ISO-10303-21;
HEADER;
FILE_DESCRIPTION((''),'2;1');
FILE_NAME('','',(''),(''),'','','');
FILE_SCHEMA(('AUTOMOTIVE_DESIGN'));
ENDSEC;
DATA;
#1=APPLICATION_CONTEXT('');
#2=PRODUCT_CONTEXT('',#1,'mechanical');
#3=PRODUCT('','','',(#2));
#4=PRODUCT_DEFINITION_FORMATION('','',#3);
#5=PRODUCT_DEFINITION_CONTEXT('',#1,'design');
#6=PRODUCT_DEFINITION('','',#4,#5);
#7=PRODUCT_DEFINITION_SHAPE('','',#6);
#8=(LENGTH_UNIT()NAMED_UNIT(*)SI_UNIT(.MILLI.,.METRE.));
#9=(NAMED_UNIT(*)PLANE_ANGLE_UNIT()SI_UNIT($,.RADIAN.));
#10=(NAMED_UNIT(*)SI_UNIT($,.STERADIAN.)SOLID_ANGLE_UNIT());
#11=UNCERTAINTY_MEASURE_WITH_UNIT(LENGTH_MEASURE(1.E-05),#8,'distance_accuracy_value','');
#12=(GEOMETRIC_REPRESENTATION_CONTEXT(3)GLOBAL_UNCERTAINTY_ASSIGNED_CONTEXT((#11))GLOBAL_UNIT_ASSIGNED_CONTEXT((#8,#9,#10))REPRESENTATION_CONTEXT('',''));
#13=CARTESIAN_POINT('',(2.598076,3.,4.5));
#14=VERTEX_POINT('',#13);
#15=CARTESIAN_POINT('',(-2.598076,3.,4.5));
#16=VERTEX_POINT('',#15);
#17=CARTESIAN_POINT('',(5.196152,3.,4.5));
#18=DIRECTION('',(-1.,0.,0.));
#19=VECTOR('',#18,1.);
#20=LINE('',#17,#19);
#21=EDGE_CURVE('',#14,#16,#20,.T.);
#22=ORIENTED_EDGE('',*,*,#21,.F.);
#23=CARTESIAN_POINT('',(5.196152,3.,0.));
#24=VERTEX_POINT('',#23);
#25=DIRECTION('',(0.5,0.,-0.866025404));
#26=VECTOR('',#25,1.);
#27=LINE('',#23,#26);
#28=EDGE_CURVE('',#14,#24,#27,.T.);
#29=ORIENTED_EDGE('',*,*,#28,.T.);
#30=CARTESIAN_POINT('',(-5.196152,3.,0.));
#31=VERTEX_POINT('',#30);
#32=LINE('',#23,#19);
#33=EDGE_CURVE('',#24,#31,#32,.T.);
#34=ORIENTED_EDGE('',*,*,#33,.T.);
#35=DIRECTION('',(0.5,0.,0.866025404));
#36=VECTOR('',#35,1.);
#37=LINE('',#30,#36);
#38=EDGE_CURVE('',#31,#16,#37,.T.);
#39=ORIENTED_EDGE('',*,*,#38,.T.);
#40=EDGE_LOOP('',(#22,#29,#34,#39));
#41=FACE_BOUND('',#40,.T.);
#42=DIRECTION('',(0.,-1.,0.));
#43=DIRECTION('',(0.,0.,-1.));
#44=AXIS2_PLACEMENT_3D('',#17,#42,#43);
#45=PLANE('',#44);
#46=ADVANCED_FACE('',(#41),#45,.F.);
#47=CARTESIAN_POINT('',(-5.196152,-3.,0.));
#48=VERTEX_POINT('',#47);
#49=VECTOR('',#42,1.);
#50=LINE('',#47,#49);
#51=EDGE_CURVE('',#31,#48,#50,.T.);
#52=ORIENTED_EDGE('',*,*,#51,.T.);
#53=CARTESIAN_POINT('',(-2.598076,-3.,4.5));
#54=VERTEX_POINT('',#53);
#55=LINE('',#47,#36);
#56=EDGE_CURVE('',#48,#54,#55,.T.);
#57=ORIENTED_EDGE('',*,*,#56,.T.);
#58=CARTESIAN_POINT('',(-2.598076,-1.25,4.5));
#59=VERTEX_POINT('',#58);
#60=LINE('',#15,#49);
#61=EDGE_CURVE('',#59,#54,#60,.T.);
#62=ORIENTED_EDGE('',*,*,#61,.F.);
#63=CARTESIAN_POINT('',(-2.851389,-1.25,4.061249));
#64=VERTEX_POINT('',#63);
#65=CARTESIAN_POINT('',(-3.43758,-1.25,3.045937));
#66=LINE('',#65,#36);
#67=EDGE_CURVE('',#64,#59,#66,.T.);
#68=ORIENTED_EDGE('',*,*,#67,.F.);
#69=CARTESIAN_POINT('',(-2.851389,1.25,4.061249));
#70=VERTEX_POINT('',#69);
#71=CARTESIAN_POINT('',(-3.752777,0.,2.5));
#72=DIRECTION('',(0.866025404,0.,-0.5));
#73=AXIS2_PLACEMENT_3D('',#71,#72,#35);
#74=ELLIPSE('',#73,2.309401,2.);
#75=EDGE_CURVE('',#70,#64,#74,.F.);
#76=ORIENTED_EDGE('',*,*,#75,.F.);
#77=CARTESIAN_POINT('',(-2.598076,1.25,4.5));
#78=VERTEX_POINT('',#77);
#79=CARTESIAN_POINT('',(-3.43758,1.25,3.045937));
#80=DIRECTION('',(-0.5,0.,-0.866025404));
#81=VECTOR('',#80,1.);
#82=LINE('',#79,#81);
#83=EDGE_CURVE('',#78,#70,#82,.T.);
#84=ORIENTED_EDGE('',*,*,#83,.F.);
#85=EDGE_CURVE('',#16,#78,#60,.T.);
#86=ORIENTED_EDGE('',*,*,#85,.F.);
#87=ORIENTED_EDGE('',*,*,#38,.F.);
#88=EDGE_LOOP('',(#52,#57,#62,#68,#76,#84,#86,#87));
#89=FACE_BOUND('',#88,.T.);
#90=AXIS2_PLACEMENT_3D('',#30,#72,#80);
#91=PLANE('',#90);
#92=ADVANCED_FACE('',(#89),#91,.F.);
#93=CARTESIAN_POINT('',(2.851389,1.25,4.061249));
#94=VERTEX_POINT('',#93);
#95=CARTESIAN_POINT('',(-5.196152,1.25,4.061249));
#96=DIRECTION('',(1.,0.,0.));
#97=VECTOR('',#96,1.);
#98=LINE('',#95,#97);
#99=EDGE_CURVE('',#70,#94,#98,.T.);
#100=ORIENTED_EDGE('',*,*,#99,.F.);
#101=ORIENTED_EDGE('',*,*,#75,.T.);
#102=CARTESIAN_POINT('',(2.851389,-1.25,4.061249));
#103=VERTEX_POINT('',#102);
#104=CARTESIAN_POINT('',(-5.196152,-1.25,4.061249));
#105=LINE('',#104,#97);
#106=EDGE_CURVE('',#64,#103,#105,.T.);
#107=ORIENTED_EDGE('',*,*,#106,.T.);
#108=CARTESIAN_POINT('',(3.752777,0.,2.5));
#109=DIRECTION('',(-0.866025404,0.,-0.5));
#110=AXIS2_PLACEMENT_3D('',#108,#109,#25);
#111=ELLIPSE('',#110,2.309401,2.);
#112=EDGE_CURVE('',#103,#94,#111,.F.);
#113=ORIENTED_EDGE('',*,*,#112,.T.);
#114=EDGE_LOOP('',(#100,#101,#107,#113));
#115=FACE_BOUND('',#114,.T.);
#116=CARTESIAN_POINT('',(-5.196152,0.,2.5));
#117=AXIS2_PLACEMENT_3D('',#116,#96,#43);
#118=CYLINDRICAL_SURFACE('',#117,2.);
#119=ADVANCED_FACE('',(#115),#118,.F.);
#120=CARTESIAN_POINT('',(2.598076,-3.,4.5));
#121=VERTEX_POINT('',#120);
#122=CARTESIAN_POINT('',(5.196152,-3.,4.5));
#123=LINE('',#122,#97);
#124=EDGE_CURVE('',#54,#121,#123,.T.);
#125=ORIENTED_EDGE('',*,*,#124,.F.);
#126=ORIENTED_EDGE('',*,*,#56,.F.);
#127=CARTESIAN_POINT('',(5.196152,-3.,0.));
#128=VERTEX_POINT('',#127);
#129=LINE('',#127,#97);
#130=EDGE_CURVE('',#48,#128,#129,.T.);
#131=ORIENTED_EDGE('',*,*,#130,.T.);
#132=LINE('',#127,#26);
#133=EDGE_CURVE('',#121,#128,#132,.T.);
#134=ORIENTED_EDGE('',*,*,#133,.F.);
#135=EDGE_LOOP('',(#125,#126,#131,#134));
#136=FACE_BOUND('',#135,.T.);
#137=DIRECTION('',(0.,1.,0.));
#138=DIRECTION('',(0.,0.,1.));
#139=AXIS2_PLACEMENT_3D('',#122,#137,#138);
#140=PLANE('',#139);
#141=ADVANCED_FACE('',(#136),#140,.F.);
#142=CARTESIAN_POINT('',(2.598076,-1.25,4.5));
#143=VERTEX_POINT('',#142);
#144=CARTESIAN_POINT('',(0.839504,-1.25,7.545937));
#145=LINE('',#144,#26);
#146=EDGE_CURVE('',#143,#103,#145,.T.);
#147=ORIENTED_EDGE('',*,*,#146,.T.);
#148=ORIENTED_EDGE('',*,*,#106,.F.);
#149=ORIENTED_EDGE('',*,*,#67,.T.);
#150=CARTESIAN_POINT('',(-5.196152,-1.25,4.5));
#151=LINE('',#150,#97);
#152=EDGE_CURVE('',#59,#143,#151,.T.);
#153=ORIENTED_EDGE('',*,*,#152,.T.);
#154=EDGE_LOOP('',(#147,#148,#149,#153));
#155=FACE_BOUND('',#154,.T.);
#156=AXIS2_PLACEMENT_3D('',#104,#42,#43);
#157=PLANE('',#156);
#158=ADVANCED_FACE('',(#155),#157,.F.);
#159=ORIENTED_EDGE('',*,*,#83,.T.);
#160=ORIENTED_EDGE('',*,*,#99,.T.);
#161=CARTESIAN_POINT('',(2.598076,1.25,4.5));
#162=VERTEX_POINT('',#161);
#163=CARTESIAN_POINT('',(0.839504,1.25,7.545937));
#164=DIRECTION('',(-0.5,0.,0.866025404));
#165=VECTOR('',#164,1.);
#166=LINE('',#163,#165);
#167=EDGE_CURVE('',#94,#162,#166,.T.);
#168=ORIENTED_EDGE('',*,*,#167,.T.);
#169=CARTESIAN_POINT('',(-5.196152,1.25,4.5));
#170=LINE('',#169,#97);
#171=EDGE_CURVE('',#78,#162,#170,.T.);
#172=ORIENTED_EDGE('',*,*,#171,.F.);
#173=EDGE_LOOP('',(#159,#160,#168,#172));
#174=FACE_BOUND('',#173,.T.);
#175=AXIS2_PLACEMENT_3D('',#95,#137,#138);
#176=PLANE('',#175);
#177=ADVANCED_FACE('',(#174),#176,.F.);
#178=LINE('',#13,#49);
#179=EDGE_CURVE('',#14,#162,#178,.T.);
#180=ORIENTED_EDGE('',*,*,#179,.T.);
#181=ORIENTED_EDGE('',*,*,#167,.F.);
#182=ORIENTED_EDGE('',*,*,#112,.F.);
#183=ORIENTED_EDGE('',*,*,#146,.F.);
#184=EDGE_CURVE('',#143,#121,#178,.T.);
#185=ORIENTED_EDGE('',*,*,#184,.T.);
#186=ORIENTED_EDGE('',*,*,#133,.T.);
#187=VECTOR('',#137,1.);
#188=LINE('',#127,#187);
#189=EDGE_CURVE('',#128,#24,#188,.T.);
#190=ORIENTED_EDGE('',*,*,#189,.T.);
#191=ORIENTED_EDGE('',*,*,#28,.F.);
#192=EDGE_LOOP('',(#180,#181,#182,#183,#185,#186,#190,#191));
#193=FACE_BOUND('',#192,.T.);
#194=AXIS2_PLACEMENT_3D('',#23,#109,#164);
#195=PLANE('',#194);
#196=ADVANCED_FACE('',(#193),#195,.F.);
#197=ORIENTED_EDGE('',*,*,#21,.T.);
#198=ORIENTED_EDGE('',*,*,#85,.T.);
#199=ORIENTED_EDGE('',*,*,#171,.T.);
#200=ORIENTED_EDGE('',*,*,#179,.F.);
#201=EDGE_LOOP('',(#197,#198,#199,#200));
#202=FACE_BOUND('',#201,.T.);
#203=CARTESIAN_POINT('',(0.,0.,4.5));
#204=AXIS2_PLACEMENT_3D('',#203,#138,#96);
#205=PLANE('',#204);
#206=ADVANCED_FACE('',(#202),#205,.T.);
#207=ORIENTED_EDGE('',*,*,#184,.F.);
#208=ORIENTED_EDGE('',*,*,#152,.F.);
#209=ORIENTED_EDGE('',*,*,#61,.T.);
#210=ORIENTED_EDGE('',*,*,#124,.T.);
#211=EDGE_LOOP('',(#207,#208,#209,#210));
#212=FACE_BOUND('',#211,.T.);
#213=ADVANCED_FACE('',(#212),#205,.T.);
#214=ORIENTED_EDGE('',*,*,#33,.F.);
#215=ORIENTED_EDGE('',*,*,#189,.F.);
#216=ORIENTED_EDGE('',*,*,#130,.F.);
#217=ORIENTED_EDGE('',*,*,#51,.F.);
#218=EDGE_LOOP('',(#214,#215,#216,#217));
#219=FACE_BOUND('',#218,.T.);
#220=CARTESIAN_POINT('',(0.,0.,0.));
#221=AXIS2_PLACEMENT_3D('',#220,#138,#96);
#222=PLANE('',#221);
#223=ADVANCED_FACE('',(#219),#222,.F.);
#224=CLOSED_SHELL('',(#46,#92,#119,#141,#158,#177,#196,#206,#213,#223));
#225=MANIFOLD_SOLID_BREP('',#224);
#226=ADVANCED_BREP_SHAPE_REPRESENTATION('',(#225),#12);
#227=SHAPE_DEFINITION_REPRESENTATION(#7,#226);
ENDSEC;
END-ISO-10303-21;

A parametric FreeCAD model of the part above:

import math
import FreeCAD as App
import Part
import Sketcher
Q = App.Units.Quantity

doc = App.newDocument("Part")
params = doc.addObject("Spreadsheet::Sheet", "Params")
for row, (alias, value) in enumerate([
    ("sketch1_height", "6 mm"),
    ("pad1_length", "4.5 mm"),
    ("sketch2_radius", "2 mm"),
    ("sketch2_width", "2.5 mm"),
    ("sketch3_height", "4.5 mm"),
], start=1):
    params.set(f"A{row}", alias)
    params.set(f"B{row}", "=" + value)
    params.setAlias(f"B{row}", alias)

body = doc.addObject("PartDesign::Body", "Body")

sketch1 = body.newObject("Sketcher::SketchObject", "Sketch")
sketch1.AttachmentSupport = (doc.getObject("XY_Plane"), [""])
sketch1.MapMode = "FlatFace"
sketch1.addGeometry(Part.LineSegment(App.Vector(-5.196152, 3, 0), App.Vector(-5.196152, -3, 0)), False)
sketch1.addGeometry(Part.LineSegment(App.Vector(-5.196152, -3, 0), App.Vector(5.196152, -3, 0)), False)
sketch1.addGeometry(Part.LineSegment(App.Vector(5.196152, -3, 0), App.Vector(5.196152, 3, 0)), False)
sketch1.addGeometry(Part.LineSegment(App.Vector(5.196152, 3, 0), App.Vector(-5.196152, 3, 0)), False)
sketch1.addConstraint(Sketcher.Constraint("Coincident", 0, 2, 1, 1))
sketch1.addConstraint(Sketcher.Constraint("Coincident", 1, 2, 2, 1))
sketch1.addConstraint(Sketcher.Constraint("Coincident", 2, 2, 3, 1))
sketch1.addConstraint(Sketcher.Constraint("Coincident", 3, 2, 0, 1))
sketch1.addConstraint(Sketcher.Constraint("Vertical", 0))
sketch1.addConstraint(Sketcher.Constraint("Horizontal", 1))
sketch1.addConstraint(Sketcher.Constraint("Vertical", 2))
sketch1.addConstraint(Sketcher.Constraint("Horizontal", 3))
sketch1.addConstraint(Sketcher.Constraint("Symmetric", 0, 2, 2, 2, -1, 1))
sketch1.addConstraint(Sketcher.Constraint("DistanceY", 0, 2, 0, 1, Q("6 mm")))
sketch1.addConstraint(Sketcher.Constraint("DistanceX", 1, 1, 1, 2, Q("10.392305 mm")))
sketch1.setExpression("Constraints[9]", "Params.sketch1_height")
pad1 = body.newObject("PartDesign::Pad", "Pad")
pad1.Profile = sketch1
pad1.setExpression("Length", "Params.pad1_length")

sketch2 = body.newObject("Sketcher::SketchObject", "Sketch001")
sketch2.AttachmentSupport = (doc.getObject("YZ_Plane"), [""])
sketch2.MapMode = "FlatFace"
sketch2.AttachmentOffset = App.Placement(App.Vector(0, 0, 5.196152), App.Rotation())
sketch2.addGeometry(Part.LineSegment(App.Vector(1.25, 4.061249, 0), App.Vector(1.25, 4.5, 0)), False)
sketch2.addGeometry(Part.LineSegment(App.Vector(1.25, 4.5, 0), App.Vector(-1.25, 4.5, 0)), False)
sketch2.addGeometry(Part.LineSegment(App.Vector(-1.25, 4.5, 0), App.Vector(-1.25, 4.061249, 0)), False)
sketch2.addGeometry(Part.ArcOfCircle(Part.Circle(App.Vector(0, 2.5, 0), App.Vector(0, 0, 1), 2), math.radians(128.682187), math.radians(411.317813)), False)
sketch2.addConstraint(Sketcher.Constraint("Coincident", 0, 2, 1, 1))
sketch2.addConstraint(Sketcher.Constraint("Coincident", 1, 2, 2, 1))
sketch2.addConstraint(Sketcher.Constraint("Coincident", 2, 2, 3, 1))
sketch2.addConstraint(Sketcher.Constraint("Coincident", 3, 2, 0, 1))
sketch2.addConstraint(Sketcher.Constraint("Vertical", 0))
sketch2.addConstraint(Sketcher.Constraint("Horizontal", 1))
sketch2.addConstraint(Sketcher.Constraint("Vertical", 2))
sketch2.addConstraint(Sketcher.Constraint("Symmetric", 2, 2, 3, 2, -2))
sketch2.addConstraint(Sketcher.Constraint("Radius", 3, Q("2 mm")))
sketch2.addConstraint(Sketcher.Constraint("DistanceX", 1, 2, 1, 1, Q("2.5 mm")))
sketch2.addConstraint(Sketcher.Constraint("DistanceY", 3, 3, 0, 2, Q("2 mm")))
sketch2.addConstraint(Sketcher.Constraint("DistanceY", -1, 1, 3, 3, Q("2.5 mm")))
sketch2.setExpression("Constraints[8]", "Params.sketch2_radius")
sketch2.setExpression("Constraints[9]", "Params.sketch2_width")
pocket1 = body.newObject("PartDesign::Pocket", "Pocket")
pocket1.Profile = sketch2
pocket1.Type = "ThroughAll"

sketch3 = body.newObject("Sketcher::SketchObject", "Sketch002")
sketch3.AttachmentSupport = (doc.getObject("XZ_Plane"), [""])
sketch3.MapMode = "FlatFace"
sketch3.AttachmentOffset = App.Placement(App.Vector(0, 0, 3), App.Rotation())
sketch3.addGeometry(Part.LineSegment(App.Vector(2.598076, 4.5, 0), App.Vector(5.196152, 0, 0)), False)
sketch3.addGeometry(Part.LineSegment(App.Vector(5.196152, 0, 0), App.Vector(5.196152, 4.5, 0)), False)
sketch3.addGeometry(Part.LineSegment(App.Vector(5.196152, 4.5, 0), App.Vector(2.598076, 4.5, 0)), False)
sketch3.addGeometry(Part.LineSegment(App.Vector(-5.196152, 4.5, 0), App.Vector(-5.196152, 0, 0)), False)
sketch3.addGeometry(Part.LineSegment(App.Vector(-5.196152, 0, 0), App.Vector(-2.598076, 4.5, 0)), False)
sketch3.addGeometry(Part.LineSegment(App.Vector(-2.598076, 4.5, 0), App.Vector(-5.196152, 4.5, 0)), False)
sketch3.addConstraint(Sketcher.Constraint("Coincident", 0, 2, 1, 1))
sketch3.addConstraint(Sketcher.Constraint("Coincident", 1, 2, 2, 1))
sketch3.addConstraint(Sketcher.Constraint("Coincident", 2, 2, 0, 1))
sketch3.addConstraint(Sketcher.Constraint("Coincident", 3, 2, 4, 1))
sketch3.addConstraint(Sketcher.Constraint("Coincident", 4, 2, 5, 1))
sketch3.addConstraint(Sketcher.Constraint("Coincident", 5, 2, 3, 1))
sketch3.addConstraint(Sketcher.Constraint("Vertical", 1))
sketch3.addConstraint(Sketcher.Constraint("Horizontal", 2))
sketch3.addConstraint(Sketcher.Constraint("Vertical", 3))
sketch3.addConstraint(Sketcher.Constraint("Horizontal", 5))
sketch3.addConstraint(Sketcher.Constraint("Symmetric", 0, 2, 3, 2, -1, 1))
sketch3.addConstraint(Sketcher.Constraint("Symmetric", 2, 2, 4, 2, -2))
sketch3.addConstraint(Sketcher.Constraint("PointOnObject", 0, 2, -1))
sketch3.addConstraint(Sketcher.Constraint("Angle", 0, Q("-60 deg")))
sketch3.addConstraint(Sketcher.Constraint("DistanceY", 1, 1, 1, 2, Q("4.5 mm")))
sketch3.addConstraint(Sketcher.Constraint("DistanceX", 3, 2, 2, 2, Q("7.794229 mm")))
sketch3.setExpression("Constraints[14]", "Params.sketch3_height")
pocket2 = body.newObject("PartDesign::Pocket", "Pocket001")
pocket2.Profile = sketch3
pocket2.Type = "ThroughAll"

doc.recompute()
